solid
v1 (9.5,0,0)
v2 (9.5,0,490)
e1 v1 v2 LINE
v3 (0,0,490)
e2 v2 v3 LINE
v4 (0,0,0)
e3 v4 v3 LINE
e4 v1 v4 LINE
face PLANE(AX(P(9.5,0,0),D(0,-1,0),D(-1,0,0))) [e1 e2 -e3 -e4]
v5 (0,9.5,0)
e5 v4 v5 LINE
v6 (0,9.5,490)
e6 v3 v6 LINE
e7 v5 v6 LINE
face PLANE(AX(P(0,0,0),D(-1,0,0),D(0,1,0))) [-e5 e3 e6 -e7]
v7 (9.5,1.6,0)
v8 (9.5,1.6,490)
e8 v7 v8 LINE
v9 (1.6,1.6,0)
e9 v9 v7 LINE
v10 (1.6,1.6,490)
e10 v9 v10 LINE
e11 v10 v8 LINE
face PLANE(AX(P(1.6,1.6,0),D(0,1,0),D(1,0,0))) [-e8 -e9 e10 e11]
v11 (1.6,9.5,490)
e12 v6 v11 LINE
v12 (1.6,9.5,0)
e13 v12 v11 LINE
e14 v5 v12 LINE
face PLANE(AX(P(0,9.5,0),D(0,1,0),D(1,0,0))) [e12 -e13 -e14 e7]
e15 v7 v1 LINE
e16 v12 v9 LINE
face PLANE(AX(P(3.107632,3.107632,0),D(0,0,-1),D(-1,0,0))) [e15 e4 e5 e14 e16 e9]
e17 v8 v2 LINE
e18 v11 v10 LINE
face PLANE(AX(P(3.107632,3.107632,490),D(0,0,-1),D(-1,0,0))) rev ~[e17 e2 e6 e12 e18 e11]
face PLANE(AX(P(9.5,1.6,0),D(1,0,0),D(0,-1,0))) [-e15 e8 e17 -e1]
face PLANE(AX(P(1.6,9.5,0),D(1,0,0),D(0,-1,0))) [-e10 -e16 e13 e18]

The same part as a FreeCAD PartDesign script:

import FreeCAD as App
import Part
import Sketcher
Q = App.Units.Quantity

doc = App.newDocument("Part")
body = doc.addObject("PartDesign::Body", "Body")

# Sketch on XY plane
sketch1 = doc.addObject("Sketcher::SketchObject", "Sketch")
body.addObject(sketch1)
sketch1.AttachmentSupport = (doc.XY_Plane, [""])
sketch1.MapMode = "FlatFace"
sketch1.addGeometry(Part.LineSegment(App.Vector(0, 9.5, 0), App.Vector(0, 0, 0)), False)
sketch1.addGeometry(Part.LineSegment(App.Vector(0, 0, 0), App.Vector(9.5, 0, 0)), False)
sketch1.addGeometry(Part.LineSegment(App.Vector(9.5, 0, 0), App.Vector(9.5, 1.6, 0)), False)
sketch1.addGeometry(Part.LineSegment(App.Vector(9.5, 1.6, 0), App.Vector(1.6, 1.6, 0)), False)
sketch1.addGeometry(Part.LineSegment(App.Vector(1.6, 1.6, 0), App.Vector(1.6, 9.5, 0)), False)
sketch1.addGeometry(Part.LineSegment(App.Vector(1.6, 9.5, 0), App.Vector(0, 9.5, 0)), False)
sketch1.addConstraint(Sketcher.Constraint("Coincident", 0, 2, 1, 1))
sketch1.addConstraint(Sketcher.Constraint("Coincident", 1, 2, 2, 1))
sketch1.addConstraint(Sketcher.Constraint("Coincident", 2, 2, 3, 1))
sketch1.addConstraint(Sketcher.Constraint("Coincident", 3, 2, 4, 1))
sketch1.addConstraint(Sketcher.Constraint("Coincident", 4, 2, 5, 1))
sketch1.addConstraint(Sketcher.Constraint("Coincident", 5, 2, 0, 1))
sketch1.addConstraint(Sketcher.Constraint("Vertical", 0))
sketch1.addConstraint(Sketcher.Constraint("Horizontal", 1))
sketch1.addConstraint(Sketcher.Constraint("Vertical", 2))
sketch1.addConstraint(Sketcher.Constraint("Horizontal", 3))
sketch1.addConstraint(Sketcher.Constraint("Vertical", 4))
sketch1.addConstraint(Sketcher.Constraint("Horizontal", 5))
sketch1.addConstraint(Sketcher.Constraint("Coincident", 0, 2, -1, 1))
sketch1.addConstraint(Sketcher.Constraint("Equal", 1, 0))
sketch1.addConstraint(Sketcher.Constraint("Equal", 5, 2))
sketch1.addConstraint(Sketcher.Constraint("DistanceX", 1, 1, 1, 2, Q("9.5 mm")))
sketch1.addConstraint(Sketcher.Constraint("DistanceX", 3, 2, 3, 1, Q("7.9 mm")))
pad1 = doc.addObject("PartDesign::Pad", "Pad")
body.addObject(pad1)
pad1.Profile = sketch1
pad1.Length = 490

doc.recompute()
